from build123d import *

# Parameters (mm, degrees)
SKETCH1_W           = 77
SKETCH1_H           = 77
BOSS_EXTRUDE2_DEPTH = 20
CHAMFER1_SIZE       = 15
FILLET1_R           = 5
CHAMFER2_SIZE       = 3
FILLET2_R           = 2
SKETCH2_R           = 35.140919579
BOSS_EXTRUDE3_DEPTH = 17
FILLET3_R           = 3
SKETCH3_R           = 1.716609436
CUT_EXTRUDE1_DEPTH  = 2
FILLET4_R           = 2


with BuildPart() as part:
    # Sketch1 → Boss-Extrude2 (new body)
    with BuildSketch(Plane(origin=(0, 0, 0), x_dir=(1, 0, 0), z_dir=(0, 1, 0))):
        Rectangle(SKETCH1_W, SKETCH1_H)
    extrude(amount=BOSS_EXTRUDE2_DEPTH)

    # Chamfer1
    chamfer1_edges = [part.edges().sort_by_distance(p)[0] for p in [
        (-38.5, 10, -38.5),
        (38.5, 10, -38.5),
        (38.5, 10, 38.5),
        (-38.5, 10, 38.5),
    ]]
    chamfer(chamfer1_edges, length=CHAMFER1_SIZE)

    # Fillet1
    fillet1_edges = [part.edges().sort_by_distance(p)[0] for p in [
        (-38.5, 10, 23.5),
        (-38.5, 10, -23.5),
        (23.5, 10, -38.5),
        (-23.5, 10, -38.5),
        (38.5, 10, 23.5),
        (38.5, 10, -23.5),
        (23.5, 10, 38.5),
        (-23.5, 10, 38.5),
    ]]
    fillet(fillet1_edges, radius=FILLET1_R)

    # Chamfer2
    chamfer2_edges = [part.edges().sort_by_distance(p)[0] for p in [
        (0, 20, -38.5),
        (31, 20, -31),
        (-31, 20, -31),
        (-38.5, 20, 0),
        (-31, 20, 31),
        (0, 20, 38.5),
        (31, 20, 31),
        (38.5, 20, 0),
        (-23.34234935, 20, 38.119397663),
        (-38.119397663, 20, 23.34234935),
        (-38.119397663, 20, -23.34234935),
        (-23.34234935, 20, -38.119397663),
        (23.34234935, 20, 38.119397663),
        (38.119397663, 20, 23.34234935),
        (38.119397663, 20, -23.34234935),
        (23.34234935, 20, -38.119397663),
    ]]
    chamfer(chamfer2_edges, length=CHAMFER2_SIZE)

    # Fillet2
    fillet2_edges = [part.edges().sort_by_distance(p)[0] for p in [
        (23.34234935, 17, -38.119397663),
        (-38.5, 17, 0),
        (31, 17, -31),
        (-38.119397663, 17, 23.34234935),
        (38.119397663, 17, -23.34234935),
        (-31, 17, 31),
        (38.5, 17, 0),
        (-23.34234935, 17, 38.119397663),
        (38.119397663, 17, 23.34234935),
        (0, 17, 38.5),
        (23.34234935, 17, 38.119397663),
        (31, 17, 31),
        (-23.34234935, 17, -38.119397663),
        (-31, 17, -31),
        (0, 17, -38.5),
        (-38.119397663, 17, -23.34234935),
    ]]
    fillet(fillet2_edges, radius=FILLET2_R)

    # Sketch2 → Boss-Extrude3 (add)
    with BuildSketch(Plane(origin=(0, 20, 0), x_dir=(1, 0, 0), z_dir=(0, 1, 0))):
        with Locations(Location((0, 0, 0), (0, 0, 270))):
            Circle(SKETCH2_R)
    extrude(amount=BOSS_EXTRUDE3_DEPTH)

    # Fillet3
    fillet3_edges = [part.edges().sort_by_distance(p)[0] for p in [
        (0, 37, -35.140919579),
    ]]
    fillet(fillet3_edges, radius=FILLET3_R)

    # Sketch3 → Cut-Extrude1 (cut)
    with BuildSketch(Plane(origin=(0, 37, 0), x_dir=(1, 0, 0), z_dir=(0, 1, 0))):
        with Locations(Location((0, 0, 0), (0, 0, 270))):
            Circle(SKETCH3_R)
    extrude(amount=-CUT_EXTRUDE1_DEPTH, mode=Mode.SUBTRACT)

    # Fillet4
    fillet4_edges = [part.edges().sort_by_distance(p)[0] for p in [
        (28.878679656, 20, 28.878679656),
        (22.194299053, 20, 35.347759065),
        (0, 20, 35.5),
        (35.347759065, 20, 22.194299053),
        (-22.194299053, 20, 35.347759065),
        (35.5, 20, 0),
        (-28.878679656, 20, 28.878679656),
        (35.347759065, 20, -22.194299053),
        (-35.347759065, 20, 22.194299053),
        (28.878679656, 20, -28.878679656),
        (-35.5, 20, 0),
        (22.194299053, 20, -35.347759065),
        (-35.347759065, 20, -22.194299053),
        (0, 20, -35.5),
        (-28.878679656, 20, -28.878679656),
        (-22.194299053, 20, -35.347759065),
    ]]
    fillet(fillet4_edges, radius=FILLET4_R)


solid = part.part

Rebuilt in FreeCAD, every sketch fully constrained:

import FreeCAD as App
import Part
import Sketcher

V = App.Vector
Q = App.Units.Quantity


def edges_at(feature, points):
    """Names of the edges that pass closest to the given points."""
    edges = feature.Shape.Edges
    near = lambda p: min(range(len(edges)), key=lambda i: edges[i].distToShape(Part.Vertex(*p))[0])
    return sorted({f"Edge{near(p) + 1}" for p in points})

doc = App.newDocument("Part")
body = doc.addObject("PartDesign::Body", "Body")

# Sketch on XZ plane
sketch1 = doc.addObject("Sketcher::SketchObject", "Sketch")
body.addObject(sketch1)
sketch1.AttachmentSupport = (doc.XZ_Plane, [""])
sketch1.MapMode = "FlatFace"
sketch1.addGeometry(Part.LineSegment(V(-38, -38, 0), V(-38, 38, 0)), False)
sketch1.addGeometry(Part.LineSegment(V(-38, 38, 0), V(38, 38, 0)), False)
sketch1.addGeometry(Part.LineSegment(V(38, 38, 0), V(38, -38, 0)), False)
sketch1.addGeometry(Part.LineSegment(V(38, -38, 0), V(-38, -38, 0)), False)
sketch1.addConstraint(Sketcher.Constraint("Coincident", 0, 2, 1, 1))
sketch1.addConstraint(Sketcher.Constraint("Coincident", 1, 2, 2, 1))
sketch1.addConstraint(Sketcher.Constraint("Coincident", 2, 2, 3, 1))
sketch1.addConstraint(Sketcher.Constraint("Coincident", 3, 2, 0, 1))
sketch1.addConstraint(Sketcher.Constraint("Vertical", 0))
sketch1.addConstraint(Sketcher.Constraint("Horizontal", 1))
sketch1.addConstraint(Sketcher.Constraint("Vertical", 2))
sketch1.addConstraint(Sketcher.Constraint("Horizontal", 3))
sketch1.addConstraint(Sketcher.Constraint("Symmetric", 0, 2, 2, 2, -1, 1))
sketch1.addConstraint(Sketcher.Constraint("Equal", 3, 0))
sketch1.addConstraint(Sketcher.Constraint("DistanceX", 1, 1, 1, 2, Q("77 mm")))
pad1 = doc.addObject("PartDesign::Pad", "Pad")
body.addObject(pad1)
pad1.Profile = sketch1
pad1.Length = 20
pad1.Reversed = True
doc.recompute()

chamfer = doc.addObject("PartDesign::Chamfer", "Chamfer")
body.addObject(chamfer)
chamfer.Base = (pad1, edges_at(pad1, [
    (-38.5, 10, -38.5),
    (38.5, 10, -38.5),
    (38.5, 10, 38.5),
    (-38.5, 10, 38.5),
]))
chamfer.Size = 15
doc.recompute()

fillet = doc.addObject("PartDesign::Fillet", "Fillet")
body.addObject(fillet)
fillet.Base = (chamfer, edges_at(chamfer, [
    (-38.5, 10, 23.5),
    (-38.5, 10, -23.5),
    (23.5, 10, -38.5),
    (-23.5, 10, -38.5),
    (38.5, 10, 23.5),
    (38.5, 10, -23.5),
    (23.5, 10, 38.5),
    (-23.5, 10, 38.5),
]))
fillet.Radius = 5
doc.recompute()

chamfer2 = doc.addObject("PartDesign::Chamfer", "Chamfer001")
body.addObject(chamfer2)
chamfer2.Base = (fillet, edges_at(fillet, [
    (0, 20, -38.5),
    (31, 20, -31),
    (-31, 20, -31),
    (-38.5, 20, 0),
    (-31, 20, 31),
    (0, 20, 38.5),
    (31, 20, 31),
    (38.5, 20, 0),
    (-23.342, 20, 38.119),
    (-38.119, 20, 23.342),
    (-38.119, 20, -23.342),
    (-23.342, 20, -38.119),
    (23.342, 20, 38.119),
    (38.119, 20, 23.342),
    (38.119, 20, -23.342),
    (23.342, 20, -38.119),
]))
chamfer2.Size = 3
doc.recompute()

fillet2 = doc.addObject("PartDesign::Fillet", "Fillet001")
body.addObject(fillet2)
fillet2.Base = (chamfer2, edges_at(chamfer2, [
    (23.342, 17, -38.119),
    (-38.5, 17, 0),
    (31, 17, -31),
    (-38.119, 17, 23.342),
    (38.119, 17, -23.342),
    (-31, 17, 31),
    (38.5, 17, 0),
    (-23.342, 17, 38.119),
    (38.119, 17, 23.342),
    (0, 17, 38.5),
    (23.342, 17, 38.119),
    (31, 17, 31),
    (-23.342, 17, -38.119),
    (-31, 17, -31),
    (0, 17, -38.5),
    (-38.119, 17, -23.342),
]))
fillet2.Radius = 2

# Sketch on XZ plane
sketch2 = doc.addObject("Sketcher::SketchObject", "Sketch001")
body.addObject(sketch2)
sketch2.AttachmentSupport = (doc.XZ_Plane, [""])
sketch2.MapMode = "FlatFace"
sketch2.AttachmentOffset = App.Placement(V(0, 0, -20), App.Rotation())
sketch2.addGeometry(Part.Circle(V(0, 0, 0), V(0, 0, 1), 35), False)
sketch2.addConstraint(Sketcher.Constraint("Coincident", 0, 3, -1, 1))
sketch2.addConstraint(Sketcher.Constraint("Diameter", 0, Q("70.281839 mm")))
pad2 = doc.addObject("PartDesign::Pad", "Pad001")
body.addObject(pad2)
pad2.Profile = sketch2
pad2.Length = 17
pad2.Reversed = True
doc.recompute()

fillet3 = doc.addObject("PartDesign::Fillet", "Fillet002")
body.addObject(fillet3)
fillet3.Base = (pad2, edges_at(pad2, [(0, 37, -35.141)]))
fillet3.Radius = 3

# Sketch on XZ plane
sketch3 = doc.addObject("Sketcher::SketchObject", "Sketch002")
body.addObject(sketch3)
sketch3.AttachmentSupport = (doc.XZ_Plane, [""])
sketch3.MapMode = "FlatFace"
sketch3.AttachmentOffset = App.Placement(V(0, 0, -37), App.Rotation())
sketch3.addGeometry(Part.Circle(V(0, 0, 0), V(0, 0, 1), 1.7), False)
sketch3.addConstraint(Sketcher.Constraint("Coincident", 0, 3, -1, 1))
sketch3.addConstraint(Sketcher.Constraint("Diameter", 0, Q("3.433219 mm")))
pocket1 = doc.addObject("PartDesign::Pocket", "Pocket")
body.addObject(pocket1)
pocket1.Profile = sketch3
pocket1.Length = 2
pocket1.Reversed = True
doc.recompute()

fillet4 = doc.addObject("PartDesign::Fillet", "Fillet003")
body.addObject(fillet4)
fillet4.Base = (pocket1, edges_at(pocket1, [
    (28.879, 20, 28.879),
    (22.194, 20, 35.348),
    (0, 20, 35.5),
    (35.348, 20, 22.194),
    (-22.194, 20, 35.348),
    (35.5, 20, 0),
    (-28.879, 20, 28.879),
    (35.348, 20, -22.194),
    (-35.348, 20, 22.194),
    (28.879, 20, -28.879),
    (-35.5, 20, 0),
    (22.194, 20, -35.348),
    (-35.348, 20, -22.194),
    (0, 20, -35.5),
    (-28.879, 20, -28.879),
    (-22.194, 20, -35.348),
]))
fillet4.Radius = 2

doc.recompute()
